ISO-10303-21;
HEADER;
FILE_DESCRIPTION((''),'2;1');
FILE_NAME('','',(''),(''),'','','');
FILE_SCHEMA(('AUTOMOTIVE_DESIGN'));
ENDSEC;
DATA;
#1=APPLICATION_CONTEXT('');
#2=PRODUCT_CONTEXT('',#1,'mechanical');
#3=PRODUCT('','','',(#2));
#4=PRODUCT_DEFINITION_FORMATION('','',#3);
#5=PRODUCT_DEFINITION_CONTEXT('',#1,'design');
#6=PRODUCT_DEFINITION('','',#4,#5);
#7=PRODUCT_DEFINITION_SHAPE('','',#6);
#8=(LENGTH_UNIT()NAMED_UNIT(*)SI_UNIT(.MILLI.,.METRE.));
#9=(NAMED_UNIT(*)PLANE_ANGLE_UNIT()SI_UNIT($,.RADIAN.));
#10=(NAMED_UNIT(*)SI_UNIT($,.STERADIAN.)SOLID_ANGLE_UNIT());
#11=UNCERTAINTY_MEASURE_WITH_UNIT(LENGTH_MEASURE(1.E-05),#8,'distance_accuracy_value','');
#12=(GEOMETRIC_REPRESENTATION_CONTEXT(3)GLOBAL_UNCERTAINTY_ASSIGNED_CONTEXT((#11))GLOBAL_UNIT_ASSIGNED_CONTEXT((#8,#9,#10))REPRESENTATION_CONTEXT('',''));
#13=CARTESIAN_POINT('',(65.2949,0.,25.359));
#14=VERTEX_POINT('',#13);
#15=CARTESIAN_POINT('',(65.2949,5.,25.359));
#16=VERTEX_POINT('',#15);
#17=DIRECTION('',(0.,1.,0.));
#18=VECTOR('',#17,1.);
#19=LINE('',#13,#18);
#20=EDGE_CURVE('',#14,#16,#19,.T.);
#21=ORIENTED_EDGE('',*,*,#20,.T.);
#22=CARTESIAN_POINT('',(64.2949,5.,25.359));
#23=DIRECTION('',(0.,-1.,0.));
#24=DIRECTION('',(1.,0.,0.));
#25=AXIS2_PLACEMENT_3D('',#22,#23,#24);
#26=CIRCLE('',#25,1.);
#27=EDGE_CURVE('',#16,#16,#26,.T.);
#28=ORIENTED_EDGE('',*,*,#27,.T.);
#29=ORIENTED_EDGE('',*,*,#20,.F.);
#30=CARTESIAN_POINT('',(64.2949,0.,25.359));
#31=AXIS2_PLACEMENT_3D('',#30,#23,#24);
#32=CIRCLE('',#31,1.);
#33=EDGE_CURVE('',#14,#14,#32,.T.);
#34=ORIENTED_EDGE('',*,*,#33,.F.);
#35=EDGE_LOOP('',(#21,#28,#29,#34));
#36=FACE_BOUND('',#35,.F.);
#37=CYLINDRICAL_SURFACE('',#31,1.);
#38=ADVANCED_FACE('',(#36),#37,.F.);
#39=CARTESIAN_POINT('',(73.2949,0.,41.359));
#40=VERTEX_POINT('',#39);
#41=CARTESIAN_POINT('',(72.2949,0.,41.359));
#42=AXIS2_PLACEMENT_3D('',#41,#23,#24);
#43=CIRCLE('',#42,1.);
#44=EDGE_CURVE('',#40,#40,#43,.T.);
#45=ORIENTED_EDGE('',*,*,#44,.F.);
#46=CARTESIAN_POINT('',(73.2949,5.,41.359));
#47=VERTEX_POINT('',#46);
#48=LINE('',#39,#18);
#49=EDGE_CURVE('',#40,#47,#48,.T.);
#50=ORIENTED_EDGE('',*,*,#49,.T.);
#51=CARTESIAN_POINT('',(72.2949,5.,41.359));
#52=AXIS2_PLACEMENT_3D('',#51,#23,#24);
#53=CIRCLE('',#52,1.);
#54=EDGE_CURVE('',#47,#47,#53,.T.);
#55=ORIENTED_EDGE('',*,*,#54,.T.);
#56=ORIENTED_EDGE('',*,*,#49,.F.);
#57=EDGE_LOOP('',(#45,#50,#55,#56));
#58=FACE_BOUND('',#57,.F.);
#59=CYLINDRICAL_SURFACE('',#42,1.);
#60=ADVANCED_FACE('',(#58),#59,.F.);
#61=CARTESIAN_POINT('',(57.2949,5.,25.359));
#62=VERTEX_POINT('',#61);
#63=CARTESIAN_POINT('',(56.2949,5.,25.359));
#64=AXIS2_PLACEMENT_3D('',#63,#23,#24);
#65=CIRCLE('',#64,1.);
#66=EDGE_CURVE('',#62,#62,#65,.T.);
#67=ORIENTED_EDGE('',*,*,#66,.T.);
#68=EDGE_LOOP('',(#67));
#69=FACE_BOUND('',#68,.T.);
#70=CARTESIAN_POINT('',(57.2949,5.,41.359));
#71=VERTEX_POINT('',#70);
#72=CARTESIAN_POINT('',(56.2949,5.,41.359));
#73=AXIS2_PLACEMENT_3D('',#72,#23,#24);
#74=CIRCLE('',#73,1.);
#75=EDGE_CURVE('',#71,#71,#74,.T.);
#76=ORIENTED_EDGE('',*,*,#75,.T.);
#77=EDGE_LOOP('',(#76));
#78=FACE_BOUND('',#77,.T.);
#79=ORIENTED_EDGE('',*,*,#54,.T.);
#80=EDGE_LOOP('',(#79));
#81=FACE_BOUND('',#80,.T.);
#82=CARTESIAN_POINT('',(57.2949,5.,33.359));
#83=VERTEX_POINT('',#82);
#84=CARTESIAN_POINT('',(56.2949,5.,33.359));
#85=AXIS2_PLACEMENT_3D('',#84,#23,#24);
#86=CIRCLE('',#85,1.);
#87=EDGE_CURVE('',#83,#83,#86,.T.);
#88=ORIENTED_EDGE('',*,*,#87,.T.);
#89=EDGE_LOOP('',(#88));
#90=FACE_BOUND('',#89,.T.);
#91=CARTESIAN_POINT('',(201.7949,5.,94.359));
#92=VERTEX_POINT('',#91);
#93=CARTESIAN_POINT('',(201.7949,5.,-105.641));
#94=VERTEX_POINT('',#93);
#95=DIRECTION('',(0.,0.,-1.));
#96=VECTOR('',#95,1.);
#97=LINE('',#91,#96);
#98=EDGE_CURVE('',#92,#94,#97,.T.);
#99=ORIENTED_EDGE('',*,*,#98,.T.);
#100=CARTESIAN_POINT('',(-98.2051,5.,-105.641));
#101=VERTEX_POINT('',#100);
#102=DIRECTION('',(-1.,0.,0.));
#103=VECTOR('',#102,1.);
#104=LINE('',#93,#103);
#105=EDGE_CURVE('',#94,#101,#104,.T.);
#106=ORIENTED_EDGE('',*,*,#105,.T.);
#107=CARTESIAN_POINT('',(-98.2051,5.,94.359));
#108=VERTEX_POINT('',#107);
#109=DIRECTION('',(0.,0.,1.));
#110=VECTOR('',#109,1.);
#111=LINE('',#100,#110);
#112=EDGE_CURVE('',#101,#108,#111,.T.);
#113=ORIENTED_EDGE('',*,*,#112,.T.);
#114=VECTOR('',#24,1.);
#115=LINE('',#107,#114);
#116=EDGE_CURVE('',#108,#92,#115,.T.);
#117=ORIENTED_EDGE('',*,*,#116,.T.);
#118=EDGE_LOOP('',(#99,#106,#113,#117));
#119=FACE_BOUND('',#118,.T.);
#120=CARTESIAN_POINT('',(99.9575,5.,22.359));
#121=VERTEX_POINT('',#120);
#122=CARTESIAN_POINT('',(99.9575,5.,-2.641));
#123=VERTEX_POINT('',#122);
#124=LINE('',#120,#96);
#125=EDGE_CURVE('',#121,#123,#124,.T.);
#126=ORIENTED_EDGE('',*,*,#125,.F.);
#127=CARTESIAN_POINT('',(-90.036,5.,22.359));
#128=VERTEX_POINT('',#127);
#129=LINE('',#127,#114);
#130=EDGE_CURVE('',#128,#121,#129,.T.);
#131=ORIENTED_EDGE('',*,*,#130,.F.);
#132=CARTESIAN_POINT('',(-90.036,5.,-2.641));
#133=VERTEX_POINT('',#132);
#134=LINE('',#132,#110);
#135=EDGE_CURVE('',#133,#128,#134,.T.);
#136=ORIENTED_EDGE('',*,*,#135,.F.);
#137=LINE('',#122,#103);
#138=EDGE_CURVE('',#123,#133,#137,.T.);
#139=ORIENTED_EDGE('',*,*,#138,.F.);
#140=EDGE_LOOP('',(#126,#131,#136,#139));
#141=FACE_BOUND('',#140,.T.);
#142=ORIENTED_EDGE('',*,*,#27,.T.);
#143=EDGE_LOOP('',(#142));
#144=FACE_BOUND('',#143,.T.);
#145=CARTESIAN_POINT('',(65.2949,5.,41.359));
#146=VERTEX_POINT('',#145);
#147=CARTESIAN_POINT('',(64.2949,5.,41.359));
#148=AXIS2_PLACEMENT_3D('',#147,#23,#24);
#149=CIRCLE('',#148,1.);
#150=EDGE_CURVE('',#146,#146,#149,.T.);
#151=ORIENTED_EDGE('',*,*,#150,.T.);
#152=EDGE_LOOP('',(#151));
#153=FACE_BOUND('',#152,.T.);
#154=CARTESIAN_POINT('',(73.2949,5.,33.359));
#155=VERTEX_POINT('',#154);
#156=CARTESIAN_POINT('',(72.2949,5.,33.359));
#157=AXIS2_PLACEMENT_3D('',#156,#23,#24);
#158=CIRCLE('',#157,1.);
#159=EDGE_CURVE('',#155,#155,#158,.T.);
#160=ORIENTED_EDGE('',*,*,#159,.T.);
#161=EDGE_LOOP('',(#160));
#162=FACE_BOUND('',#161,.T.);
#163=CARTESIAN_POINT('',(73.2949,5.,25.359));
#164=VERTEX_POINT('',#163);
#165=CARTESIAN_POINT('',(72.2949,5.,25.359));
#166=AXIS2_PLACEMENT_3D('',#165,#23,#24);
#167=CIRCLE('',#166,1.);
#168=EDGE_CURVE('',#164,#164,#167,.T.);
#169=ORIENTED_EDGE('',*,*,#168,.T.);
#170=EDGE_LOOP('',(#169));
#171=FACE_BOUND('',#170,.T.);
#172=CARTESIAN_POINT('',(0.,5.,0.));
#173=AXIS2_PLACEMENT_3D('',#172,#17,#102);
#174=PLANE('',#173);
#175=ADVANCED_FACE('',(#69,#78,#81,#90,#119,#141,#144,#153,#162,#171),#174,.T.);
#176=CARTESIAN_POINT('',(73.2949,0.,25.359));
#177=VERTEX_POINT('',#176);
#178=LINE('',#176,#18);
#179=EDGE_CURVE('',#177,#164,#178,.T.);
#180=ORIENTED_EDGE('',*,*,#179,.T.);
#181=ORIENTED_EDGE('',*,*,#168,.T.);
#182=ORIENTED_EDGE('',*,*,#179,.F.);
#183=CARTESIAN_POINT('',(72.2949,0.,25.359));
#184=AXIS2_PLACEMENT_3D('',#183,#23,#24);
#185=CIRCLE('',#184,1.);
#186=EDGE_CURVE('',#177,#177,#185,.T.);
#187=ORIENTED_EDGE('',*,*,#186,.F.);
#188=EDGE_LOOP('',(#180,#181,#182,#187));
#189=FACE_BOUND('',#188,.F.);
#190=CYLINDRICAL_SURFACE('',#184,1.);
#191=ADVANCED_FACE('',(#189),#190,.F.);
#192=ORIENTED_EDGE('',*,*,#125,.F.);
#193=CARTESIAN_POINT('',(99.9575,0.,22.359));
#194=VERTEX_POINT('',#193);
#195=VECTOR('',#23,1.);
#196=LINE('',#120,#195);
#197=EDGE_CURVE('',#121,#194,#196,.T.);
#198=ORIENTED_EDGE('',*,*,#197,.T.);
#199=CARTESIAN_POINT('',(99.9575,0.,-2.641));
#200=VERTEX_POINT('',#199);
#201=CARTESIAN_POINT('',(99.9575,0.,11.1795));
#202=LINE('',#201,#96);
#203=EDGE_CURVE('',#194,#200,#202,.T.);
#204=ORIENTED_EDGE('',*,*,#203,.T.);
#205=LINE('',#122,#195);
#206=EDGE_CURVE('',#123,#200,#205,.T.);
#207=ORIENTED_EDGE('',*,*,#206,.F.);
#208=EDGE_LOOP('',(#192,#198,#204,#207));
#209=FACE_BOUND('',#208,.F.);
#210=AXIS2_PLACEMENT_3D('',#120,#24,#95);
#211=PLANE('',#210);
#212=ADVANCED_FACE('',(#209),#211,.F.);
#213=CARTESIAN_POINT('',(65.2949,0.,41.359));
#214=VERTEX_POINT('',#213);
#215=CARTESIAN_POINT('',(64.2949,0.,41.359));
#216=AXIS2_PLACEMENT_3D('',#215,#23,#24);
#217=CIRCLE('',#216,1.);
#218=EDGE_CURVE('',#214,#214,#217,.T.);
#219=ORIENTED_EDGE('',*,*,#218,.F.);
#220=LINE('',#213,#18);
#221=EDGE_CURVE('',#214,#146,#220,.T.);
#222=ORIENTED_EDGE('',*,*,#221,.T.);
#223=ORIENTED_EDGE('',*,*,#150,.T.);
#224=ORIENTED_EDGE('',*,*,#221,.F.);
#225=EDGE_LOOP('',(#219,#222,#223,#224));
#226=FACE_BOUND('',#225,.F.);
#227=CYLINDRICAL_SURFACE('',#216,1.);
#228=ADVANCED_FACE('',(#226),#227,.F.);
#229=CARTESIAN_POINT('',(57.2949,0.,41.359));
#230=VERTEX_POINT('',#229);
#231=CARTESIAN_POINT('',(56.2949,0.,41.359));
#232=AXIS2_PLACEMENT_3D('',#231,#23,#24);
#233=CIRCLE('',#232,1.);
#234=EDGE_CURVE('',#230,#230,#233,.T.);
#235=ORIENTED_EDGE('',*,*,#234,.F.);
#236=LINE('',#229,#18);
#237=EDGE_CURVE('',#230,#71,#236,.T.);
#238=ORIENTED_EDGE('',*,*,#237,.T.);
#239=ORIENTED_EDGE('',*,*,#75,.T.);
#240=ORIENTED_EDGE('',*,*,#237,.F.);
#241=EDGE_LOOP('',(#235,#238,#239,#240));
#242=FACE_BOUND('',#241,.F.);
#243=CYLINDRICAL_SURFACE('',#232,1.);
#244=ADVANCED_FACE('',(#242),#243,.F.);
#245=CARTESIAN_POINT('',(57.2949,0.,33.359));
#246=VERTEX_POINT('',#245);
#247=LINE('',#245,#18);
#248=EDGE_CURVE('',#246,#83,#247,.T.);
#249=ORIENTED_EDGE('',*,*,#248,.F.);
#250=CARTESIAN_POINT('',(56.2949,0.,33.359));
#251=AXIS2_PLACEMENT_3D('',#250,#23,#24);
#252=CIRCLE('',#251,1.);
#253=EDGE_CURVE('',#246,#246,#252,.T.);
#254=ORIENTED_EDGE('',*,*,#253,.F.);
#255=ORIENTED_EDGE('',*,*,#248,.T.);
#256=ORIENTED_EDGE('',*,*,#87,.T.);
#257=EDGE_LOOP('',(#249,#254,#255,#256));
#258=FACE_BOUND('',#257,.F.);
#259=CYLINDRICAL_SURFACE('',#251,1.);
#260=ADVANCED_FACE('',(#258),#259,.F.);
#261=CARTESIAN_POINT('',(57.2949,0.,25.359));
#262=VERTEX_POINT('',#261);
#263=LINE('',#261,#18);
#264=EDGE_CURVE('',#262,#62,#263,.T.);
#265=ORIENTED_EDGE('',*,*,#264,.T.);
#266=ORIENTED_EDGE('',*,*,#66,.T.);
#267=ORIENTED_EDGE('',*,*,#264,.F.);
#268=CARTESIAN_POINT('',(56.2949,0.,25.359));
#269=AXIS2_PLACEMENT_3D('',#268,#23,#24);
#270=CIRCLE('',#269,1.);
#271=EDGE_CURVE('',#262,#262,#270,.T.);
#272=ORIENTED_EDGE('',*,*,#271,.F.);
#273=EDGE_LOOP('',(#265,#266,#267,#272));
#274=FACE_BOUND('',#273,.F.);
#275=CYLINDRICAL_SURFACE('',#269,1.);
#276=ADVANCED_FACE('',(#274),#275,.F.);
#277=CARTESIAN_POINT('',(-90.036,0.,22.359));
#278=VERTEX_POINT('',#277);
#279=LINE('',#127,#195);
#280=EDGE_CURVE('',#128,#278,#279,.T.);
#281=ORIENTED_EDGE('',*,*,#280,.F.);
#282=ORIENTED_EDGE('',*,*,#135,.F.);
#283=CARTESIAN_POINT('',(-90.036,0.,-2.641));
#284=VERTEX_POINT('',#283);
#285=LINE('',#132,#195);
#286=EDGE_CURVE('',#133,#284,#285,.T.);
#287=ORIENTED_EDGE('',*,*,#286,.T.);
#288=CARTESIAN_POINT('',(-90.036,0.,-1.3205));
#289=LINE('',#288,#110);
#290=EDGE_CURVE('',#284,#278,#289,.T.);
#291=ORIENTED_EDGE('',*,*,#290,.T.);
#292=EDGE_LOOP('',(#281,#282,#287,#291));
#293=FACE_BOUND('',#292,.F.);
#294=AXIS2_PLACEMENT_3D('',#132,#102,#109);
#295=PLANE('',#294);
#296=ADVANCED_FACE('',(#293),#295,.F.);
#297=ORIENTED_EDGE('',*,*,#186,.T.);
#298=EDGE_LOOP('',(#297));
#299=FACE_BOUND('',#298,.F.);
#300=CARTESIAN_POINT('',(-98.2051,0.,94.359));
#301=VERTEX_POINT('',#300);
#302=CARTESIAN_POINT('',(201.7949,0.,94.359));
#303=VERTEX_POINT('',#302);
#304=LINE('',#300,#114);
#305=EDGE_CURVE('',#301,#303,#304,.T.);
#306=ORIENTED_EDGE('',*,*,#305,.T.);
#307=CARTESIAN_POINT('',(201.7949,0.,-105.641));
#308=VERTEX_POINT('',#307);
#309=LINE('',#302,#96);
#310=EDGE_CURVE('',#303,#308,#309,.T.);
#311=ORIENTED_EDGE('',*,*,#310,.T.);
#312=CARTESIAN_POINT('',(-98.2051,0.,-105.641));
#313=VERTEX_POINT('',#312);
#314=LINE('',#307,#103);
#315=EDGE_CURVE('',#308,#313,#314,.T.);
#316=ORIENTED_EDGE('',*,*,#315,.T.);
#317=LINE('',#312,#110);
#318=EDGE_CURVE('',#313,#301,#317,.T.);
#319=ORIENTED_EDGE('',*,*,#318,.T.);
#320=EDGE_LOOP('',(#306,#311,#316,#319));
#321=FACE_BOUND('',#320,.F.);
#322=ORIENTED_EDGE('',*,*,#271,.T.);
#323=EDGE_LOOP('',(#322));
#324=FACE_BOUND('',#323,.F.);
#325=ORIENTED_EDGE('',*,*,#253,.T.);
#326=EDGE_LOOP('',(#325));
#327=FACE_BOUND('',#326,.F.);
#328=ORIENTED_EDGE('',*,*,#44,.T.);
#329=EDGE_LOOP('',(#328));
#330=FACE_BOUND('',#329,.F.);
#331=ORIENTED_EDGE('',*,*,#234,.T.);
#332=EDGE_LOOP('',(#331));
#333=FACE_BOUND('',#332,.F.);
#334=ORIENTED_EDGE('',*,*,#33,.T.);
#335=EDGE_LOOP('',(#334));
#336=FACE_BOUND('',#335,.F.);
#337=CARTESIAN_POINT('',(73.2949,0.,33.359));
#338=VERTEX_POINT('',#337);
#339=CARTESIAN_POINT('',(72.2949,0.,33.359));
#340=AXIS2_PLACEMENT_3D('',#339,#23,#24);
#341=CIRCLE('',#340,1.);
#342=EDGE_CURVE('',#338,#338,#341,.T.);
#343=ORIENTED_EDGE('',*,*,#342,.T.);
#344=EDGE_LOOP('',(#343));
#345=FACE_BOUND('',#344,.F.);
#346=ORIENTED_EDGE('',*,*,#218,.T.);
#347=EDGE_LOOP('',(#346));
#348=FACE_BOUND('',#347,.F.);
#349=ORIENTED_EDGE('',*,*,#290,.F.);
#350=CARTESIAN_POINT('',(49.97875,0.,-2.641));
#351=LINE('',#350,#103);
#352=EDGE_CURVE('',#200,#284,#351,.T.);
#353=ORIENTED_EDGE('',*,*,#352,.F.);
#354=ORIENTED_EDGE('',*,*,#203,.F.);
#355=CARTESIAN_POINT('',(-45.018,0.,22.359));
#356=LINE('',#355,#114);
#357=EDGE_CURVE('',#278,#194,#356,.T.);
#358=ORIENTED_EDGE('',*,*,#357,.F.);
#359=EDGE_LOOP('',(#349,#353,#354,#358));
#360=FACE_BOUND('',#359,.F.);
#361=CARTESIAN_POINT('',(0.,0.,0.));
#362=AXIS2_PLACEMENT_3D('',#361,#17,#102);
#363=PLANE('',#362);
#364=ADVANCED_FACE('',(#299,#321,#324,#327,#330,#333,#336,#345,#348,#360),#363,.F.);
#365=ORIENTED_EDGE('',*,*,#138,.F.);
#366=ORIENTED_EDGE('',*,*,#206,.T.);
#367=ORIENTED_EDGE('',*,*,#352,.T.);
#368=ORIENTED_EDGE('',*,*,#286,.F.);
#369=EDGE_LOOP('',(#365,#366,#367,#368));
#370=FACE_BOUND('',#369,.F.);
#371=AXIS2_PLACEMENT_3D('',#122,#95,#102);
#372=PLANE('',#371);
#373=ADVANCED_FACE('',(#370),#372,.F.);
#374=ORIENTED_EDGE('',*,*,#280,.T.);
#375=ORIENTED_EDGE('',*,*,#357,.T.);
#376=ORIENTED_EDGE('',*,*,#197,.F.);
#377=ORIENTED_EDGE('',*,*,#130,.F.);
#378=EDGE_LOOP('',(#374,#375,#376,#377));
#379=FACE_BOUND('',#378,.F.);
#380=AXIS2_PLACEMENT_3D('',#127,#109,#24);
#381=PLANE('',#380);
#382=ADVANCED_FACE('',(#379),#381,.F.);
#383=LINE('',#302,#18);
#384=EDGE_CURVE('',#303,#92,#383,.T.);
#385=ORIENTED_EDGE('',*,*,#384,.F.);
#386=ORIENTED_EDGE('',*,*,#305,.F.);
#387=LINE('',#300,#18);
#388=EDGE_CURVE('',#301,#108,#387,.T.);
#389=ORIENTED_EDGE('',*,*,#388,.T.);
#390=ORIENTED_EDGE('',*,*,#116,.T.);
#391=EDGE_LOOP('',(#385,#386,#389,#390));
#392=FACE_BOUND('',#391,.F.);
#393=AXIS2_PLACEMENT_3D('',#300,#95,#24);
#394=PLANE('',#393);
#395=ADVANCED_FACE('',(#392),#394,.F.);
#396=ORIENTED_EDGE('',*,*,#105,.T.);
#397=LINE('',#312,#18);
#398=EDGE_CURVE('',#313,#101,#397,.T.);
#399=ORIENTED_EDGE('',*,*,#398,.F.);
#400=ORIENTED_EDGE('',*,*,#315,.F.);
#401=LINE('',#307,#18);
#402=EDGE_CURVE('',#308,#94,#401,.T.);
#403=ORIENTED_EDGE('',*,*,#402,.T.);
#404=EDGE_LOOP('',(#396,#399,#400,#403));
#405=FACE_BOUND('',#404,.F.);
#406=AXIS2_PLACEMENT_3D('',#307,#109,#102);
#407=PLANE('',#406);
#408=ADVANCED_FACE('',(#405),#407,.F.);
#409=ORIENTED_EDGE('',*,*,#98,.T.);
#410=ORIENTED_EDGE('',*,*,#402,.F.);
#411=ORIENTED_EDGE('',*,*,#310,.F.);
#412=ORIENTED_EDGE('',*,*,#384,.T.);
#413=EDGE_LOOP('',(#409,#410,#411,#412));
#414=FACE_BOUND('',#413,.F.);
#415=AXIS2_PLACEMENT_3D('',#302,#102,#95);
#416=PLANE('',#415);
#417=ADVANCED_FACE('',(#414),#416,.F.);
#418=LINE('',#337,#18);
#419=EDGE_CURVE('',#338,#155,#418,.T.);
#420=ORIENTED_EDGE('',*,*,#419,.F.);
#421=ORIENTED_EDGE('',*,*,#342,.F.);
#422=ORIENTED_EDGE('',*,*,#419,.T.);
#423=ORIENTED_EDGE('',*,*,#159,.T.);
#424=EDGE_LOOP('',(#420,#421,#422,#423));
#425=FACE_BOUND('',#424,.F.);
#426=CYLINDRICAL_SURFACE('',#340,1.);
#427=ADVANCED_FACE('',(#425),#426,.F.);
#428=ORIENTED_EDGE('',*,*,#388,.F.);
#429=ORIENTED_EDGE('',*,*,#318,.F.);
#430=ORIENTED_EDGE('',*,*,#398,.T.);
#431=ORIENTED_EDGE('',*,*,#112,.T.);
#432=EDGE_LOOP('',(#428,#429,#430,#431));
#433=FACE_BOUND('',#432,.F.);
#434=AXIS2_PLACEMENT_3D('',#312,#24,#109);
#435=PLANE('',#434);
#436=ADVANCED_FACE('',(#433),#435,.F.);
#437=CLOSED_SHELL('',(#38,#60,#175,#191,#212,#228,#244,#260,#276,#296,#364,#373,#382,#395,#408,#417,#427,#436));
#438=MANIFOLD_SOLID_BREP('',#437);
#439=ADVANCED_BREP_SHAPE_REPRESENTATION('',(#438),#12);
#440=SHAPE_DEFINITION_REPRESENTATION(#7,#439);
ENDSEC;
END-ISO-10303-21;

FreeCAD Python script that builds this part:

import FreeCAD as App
import Part
import Sketcher

doc = App.newDocument("Part")
params = doc.addObject("Spreadsheet::Sheet", "Params")
for row, (alias, value) in enumerate([
    ("sketch1_width", "300 mm"),
    ("sketch1_height", "200 mm"),
    ("pad1_length", "5 mm"),
    ("sketch2_height", "25 mm"),
    ("sketch3_diameter", "2 mm"),
], start=1):
    params.set(f"A{row}", alias)
    params.set(f"B{row}", "=" + value)
    params.setAlias(f"B{row}", alias)

body = doc.addObject("PartDesign::Body", "Body")

sketch1 = body.newObject("Sketcher::SketchObject", "Sketch")
sketch1.AttachmentSupport = (doc.getObject("XZ_Plane"), [""])
sketch1.MapMode = "FlatFace"
sketch1.addGeometry([
    Part.LineSegment(App.Vector(-98, -106, 0), App.Vector(-98, 94, 0)),
    Part.LineSegment(App.Vector(-98, 94, 0), App.Vector(202, 94, 0)),
    Part.LineSegment(App.Vector(202, 94, 0), App.Vector(202, -106, 0)),
    Part.LineSegment(App.Vector(202, -106, 0), App.Vector(-98, -106, 0)),
], False)
sketch1.addConstraint([
    Sketcher.Constraint("Coincident", 0, 2, 1, 1),
    Sketcher.Constraint("Coincident", 1, 2, 2, 1),
    Sketcher.Constraint("Coincident", 2, 2, 3, 1),
    Sketcher.Constraint("Coincident", 3, 2, 0, 1),
    Sketcher.Constraint("Vertical", 0),
    Sketcher.Constraint("Horizontal", 1),
    Sketcher.Constraint("Vertical", 2),
    Sketcher.Constraint("Horizontal", 3),
    Sketcher.Constraint("DistanceX", 1, 1, 1, 2, 300.0),
    Sketcher.Constraint("DistanceY", 0, 1, 0, 2, 200.0),
    Sketcher.Constraint("DistanceX", 0, 2, -1, 1, 98.205),
    Sketcher.Constraint("DistanceY", -1, 1, 0, 2, 94.359),
])
sketch1.setExpression("Constraints[8]", "Params.sketch1_width")
sketch1.setExpression("Constraints[9]", "Params.sketch1_height")
pad1 = body.newObject("PartDesign::Pad", "Pad")
pad1.Profile = sketch1
pad1.setExpression("Length", "Params.pad1_length")
pad1.Reversed = True

sketch2 = body.newObject("Sketcher::SketchObject", "Sketch001")
sketch2.AttachmentSupport = (doc.getObject("XZ_Plane"), [""])
sketch2.MapMode = "FlatFace"
sketch2.AttachmentOffset = App.Placement(App.Vector(0, 0, -5), App.Rotation())
sketch2.addGeometry([
    Part.LineSegment(App.Vector(-90, -3, 0), App.Vector(-90, 22, 0)),
    Part.LineSegment(App.Vector(-90, 22, 0), App.Vector(100, 22, 0)),
    Part.LineSegment(App.Vector(100, 22, 0), App.Vector(100, -3, 0)),
    Part.LineSegment(App.Vector(100, -3, 0), App.Vector(-90, -3, 0)),
], False)
sketch2.addConstraint([
    Sketcher.Constraint("Coincident", 0, 2, 1, 1),
    Sketcher.Constraint("Coincident", 1, 2, 2, 1),
    Sketcher.Constraint("Coincident", 2, 2, 3, 1),
    Sketcher.Constraint("Coincident", 3, 2, 0, 1),
    Sketcher.Constraint("Vertical", 0),
    Sketcher.Constraint("Horizontal", 1),
    Sketcher.Constraint("Vertical", 2),
    Sketcher.Constraint("Horizontal", 3),
    Sketcher.Constraint("DistanceY", 0, 1, 0, 2, 25.0),
    Sketcher.Constraint("DistanceX", 1, 1, 1, 2, 189.9935),
    Sketcher.Constraint("DistanceX", 0, 2, -1, 1, 90.036),
    Sketcher.Constraint("DistanceY", -1, 1, 0, 2, 22.359),
])
sketch2.setExpression("Constraints[8]", "Params.sketch2_height")
pocket1 = body.newObject("PartDesign::Pocket", "Pocket")
pocket1.Profile = sketch2
pocket1.Type = "ThroughAll"
pocket1.Reversed = True

sketch3 = body.newObject("Sketcher::SketchObject", "Sketch002")
sketch3.AttachmentSupport = (doc.getObject("XZ_Plane"), [""])
sketch3.MapMode = "FlatFace"
sketch3.addGeometry([
    Part.Circle(App.Vector(56.3, 33.4, 0), App.Vector(0, 0, 1), 1),
    Part.Circle(App.Vector(56.3, 41.4, 0), App.Vector(0, 0, 1), 1),
    Part.Circle(App.Vector(64.3, 41.4, 0), App.Vector(0, 0, 1), 1),
    Part.Circle(App.Vector(72.3, 33.4, 0), App.Vector(0, 0, 1), 1),
    Part.Circle(App.Vector(72.3, 41.4, 0), App.Vector(0, 0, 1), 1),
    Part.Circle(App.Vector(72.3, 25.4, 0), App.Vector(0, 0, 1), 1),
    Part.Circle(App.Vector(64.3, 25.4, 0), App.Vector(0, 0, 1), 1),
    Part.Circle(App.Vector(56.3, 25.4, 0), App.Vector(0, 0, 1), 1),
], False)
sketch3.addConstraint([
    Sketcher.Constraint("Equal", 0, 1),
    Sketcher.Constraint("Equal", 1, 2),
    Sketcher.Constraint("Equal", 2, 3),
    Sketcher.Constraint("Equal", 3, 4),
    Sketcher.Constraint("Equal", 4, 5),
    Sketcher.Constraint("Equal", 5, 6),
    Sketcher.Constraint("Equal", 6, 7),
    Sketcher.Constraint("Horizontal", 1, 3, 2, 3),
    Sketcher.Constraint("Horizontal", 0, 3, 3, 3),
    Sketcher.Constraint("Horizontal", 2, 3, 4, 3),
    Sketcher.Constraint("Horizontal", 5, 3, 6, 3),
    Sketcher.Constraint("Horizontal", 6, 3, 7, 3),
    Sketcher.Constraint("Vertical", 0, 3, 1, 3),
    Sketcher.Constraint("Vertical", 3, 3, 4, 3),
    Sketcher.Constraint("Vertical", 4, 3, 5, 3),
    Sketcher.Constraint("Vertical", 2, 3, 6, 3),
    Sketcher.Constraint("Vertical", 1, 3, 7, 3),
    Sketcher.Constraint("Diameter", 0, 2.0),
    Sketcher.Constraint("DistanceY", 0, 3, 1, 3, 8.0),
    Sketcher.Constraint("DistanceX", 1, 3, 2, 3, 8.0),
    Sketcher.Constraint("DistanceX", 2, 3, 3, 3, 8.0),
    Sketcher.Constraint("DistanceY", 5, 3, 3, 3, 8.0),
    Sketcher.Constraint("DistanceX", -1, 1, 0, 3, 56.295),
    Sketcher.Constraint("DistanceY", -1, 1, 0, 3, 33.359),
])
sketch3.setExpression("Constraints[17]", "Params.sketch3_diameter")
pocket2 = body.newObject("PartDesign::Pocket", "Pocket001")
pocket2.Profile = sketch3
pocket2.Type = "ThroughAll"

doc.recompute()
